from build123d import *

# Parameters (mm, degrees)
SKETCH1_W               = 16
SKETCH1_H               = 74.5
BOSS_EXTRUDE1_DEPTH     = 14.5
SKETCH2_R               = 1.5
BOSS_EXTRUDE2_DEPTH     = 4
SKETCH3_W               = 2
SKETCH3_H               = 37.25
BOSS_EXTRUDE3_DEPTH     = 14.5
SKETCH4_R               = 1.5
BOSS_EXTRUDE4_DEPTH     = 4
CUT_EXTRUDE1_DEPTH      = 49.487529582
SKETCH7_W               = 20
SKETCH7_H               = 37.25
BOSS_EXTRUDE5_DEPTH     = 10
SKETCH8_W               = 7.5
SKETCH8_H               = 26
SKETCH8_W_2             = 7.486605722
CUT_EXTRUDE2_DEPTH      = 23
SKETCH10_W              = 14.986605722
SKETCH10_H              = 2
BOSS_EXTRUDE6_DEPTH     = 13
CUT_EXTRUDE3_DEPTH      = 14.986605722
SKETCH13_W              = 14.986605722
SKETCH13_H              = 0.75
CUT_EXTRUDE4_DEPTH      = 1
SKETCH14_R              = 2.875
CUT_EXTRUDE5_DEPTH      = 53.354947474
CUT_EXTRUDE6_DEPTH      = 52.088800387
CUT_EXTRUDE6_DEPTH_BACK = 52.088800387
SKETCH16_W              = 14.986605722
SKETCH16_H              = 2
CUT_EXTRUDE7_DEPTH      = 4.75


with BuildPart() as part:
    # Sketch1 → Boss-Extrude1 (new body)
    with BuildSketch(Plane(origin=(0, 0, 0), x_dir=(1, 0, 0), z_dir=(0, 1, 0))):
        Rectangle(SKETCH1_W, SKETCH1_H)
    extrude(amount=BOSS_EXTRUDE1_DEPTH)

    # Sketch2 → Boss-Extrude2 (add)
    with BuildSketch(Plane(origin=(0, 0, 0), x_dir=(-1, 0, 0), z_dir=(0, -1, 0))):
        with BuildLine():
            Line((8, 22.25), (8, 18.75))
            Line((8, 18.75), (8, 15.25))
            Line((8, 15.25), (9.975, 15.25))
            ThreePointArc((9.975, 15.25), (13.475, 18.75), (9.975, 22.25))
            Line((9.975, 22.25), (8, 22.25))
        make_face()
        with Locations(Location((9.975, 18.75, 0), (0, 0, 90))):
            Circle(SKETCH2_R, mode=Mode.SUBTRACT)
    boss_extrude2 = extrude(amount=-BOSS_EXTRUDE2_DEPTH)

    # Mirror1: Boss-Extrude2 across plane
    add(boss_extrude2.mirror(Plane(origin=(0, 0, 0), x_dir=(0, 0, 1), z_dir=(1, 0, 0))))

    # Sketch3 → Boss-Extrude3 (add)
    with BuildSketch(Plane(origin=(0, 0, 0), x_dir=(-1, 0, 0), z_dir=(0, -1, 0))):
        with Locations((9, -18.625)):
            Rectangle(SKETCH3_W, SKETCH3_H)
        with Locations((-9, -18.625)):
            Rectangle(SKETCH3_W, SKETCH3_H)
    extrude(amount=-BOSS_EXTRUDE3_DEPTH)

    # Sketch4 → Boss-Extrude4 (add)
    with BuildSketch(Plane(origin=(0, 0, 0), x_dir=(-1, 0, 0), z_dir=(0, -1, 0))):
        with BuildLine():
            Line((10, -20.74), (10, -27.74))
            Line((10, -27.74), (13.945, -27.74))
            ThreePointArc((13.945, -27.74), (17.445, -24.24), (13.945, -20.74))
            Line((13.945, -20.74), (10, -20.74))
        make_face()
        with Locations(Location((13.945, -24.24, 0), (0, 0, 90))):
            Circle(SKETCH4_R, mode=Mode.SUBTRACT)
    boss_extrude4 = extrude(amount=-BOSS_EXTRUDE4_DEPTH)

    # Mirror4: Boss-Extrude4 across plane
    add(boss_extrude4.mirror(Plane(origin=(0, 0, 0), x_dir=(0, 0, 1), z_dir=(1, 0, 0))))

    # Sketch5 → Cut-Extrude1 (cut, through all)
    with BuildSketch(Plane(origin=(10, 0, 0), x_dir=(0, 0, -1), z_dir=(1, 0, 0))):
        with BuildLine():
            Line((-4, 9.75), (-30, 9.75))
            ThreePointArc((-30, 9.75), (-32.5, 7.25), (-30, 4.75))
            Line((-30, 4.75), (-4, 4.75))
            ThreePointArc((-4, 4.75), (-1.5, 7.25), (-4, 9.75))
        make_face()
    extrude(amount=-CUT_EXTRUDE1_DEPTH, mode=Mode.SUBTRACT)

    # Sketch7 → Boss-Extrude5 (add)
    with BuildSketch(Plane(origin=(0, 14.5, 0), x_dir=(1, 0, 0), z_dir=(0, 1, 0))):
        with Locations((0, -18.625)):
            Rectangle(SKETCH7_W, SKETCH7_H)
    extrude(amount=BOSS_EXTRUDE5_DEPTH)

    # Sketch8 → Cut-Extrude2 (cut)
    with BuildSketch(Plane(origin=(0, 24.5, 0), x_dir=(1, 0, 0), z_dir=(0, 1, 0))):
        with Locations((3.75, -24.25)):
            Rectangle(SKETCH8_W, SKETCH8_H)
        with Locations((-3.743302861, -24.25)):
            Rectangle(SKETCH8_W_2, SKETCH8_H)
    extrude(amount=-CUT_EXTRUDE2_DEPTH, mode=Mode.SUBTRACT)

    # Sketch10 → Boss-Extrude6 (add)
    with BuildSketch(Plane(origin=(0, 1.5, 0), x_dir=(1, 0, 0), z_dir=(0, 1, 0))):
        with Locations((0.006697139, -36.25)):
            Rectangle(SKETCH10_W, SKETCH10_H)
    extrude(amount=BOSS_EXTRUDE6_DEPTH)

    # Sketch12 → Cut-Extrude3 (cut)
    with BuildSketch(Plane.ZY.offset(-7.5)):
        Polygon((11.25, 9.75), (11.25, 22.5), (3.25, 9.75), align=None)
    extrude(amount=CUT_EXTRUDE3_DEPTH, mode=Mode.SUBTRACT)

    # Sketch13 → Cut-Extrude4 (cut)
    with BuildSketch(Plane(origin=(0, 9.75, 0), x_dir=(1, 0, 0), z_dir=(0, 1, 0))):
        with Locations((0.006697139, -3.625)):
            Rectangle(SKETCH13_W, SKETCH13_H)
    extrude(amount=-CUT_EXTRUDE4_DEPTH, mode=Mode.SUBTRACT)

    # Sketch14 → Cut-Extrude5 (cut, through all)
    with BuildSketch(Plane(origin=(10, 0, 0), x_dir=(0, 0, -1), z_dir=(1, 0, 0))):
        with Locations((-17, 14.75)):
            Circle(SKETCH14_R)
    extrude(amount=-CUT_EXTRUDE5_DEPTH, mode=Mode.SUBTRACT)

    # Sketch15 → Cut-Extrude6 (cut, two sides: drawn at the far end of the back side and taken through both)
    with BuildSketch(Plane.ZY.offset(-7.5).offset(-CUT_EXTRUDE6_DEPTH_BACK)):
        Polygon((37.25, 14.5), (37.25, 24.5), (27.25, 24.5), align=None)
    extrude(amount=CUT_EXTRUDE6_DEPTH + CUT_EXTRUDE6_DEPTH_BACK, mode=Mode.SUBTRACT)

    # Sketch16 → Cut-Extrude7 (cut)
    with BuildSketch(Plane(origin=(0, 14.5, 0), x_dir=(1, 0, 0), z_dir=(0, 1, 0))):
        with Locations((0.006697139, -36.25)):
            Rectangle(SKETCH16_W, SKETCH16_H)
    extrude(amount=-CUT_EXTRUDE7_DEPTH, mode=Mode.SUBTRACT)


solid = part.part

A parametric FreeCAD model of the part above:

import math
import FreeCAD as App
import Part
import Sketcher
from FreeCAD import Vector


def add_polygon(sketch, points):
    """Adds a closed chain of lines whose ends are joined by coincident constraints."""
    first, n = sketch.GeometryCount, len(points)
    for a, b in zip(points, points[1:] + points[:1]):
        sketch.addGeometry(Part.LineSegment(App.Vector(*a, 0), App.Vector(*b, 0)), False)
    for i in range(n):
        sketch.addConstraint(Sketcher.Constraint("Coincident", first + i, 2, first + (i + 1) % n, 1))

doc = App.newDocument("Part")
params = doc.addObject("Spreadsheet::Sheet", "Params")
for row, (alias, value) in enumerate([
    ("sketch1_width", "16 mm"),
    ("sketch1_height", "74.5 mm"),
    ("pad1_length", "14.5 mm"),
    ("sketch2_diameter", "3 mm"),
    ("sketch2_radius", "3.5 mm"),
    ("pad2_length", "4 mm"),
    ("sketch3_width", "2 mm"),
    ("sketch3_height", "37.25 mm"),
    ("pad3_length", "14.5 mm"),
    ("sketch4_diameter", "3 mm"),
    ("sketch4_radius", "3.5 mm"),
    ("pad4_length", "4 mm"),
    ("sketch5_radius", "2.5 mm"),
    ("sketch5_height", "26 mm"),
    ("sketch6_width", "20 mm"),
    ("sketch6_height", "37.25 mm"),
    ("pad5_length", "10 mm"),
    ("sketch7_height", "26 mm"),
    ("pocket2_length", "23 mm"),
    ("sketch8_height", "2 mm"),
    ("pad6_length", "13 mm"),
    ("sketch9_height", "8 mm"),
    ("sketch9_width", "12.75 mm"),
    ("pocket3_length", "14.986606 mm"),
    ("sketch10_height", "0.75 mm"),
    ("pocket4_length", "1 mm"),
    ("sketch11_diameter", "5.75 mm"),
    ("sketch12_width", "10 mm"),
    ("sketch13_height", "2 mm"),
    ("pocket7_length", "4.75 mm"),
], start=1):
    params.set(f"A{row}", alias)
    params.set(f"B{row}", "=" + value)
    params.setAlias(f"B{row}", alias)

body = doc.addObject("PartDesign::Body", "Body")

sketch1 = body.newObject("Sketcher::SketchObject", "Sketch")
sketch1.AttachmentSupport = (doc.getObject("XZ_Plane"), [""])
sketch1.MapMode = "FlatFace"
add_polygon(sketch1, [(-8, -37.25), (-8, 37.25), (8, 37.25), (8, -37.25)])
sketch1.addConstraint(Sketcher.Constraint("Vertical", 0))
sketch1.addConstraint(Sketcher.Constraint("Horizontal", 1))
sketch1.addConstraint(Sketcher.Constraint("Vertical", 2))
sketch1.addConstraint(Sketcher.Constraint("Horizontal", 3))
sketch1.addConstraint(Sketcher.Constraint("Symmetric", 0, 2, 2, 2, -1, 1))
sketch1.addConstraint(Sketcher.Constraint("DistanceX", 1, 1, 1, 2, 16.0))
sketch1.addConstraint(Sketcher.Constraint("DistanceY", 0, 1, 0, 2, 74.5))
sketch1.setExpression("Constraints[9]", "Params.sketch1_width")
sketch1.setExpression("Constraints[10]", "Params.sketch1_height")
pad1 = body.newObject("PartDesign::Pad", "Pad")
pad1.Profile = sketch1
pad1.setExpression("Length", "Params.pad1_length")
pad1.Reversed = True

sketch2 = body.newObject("Sketcher::SketchObject", "Sketch001")
sketch2.AttachmentSupport = (doc.getObject("XZ_Plane"), [""])
sketch2.MapMode = "FlatFace"
sketch2.addGeometry(Part.LineSegment(Vector(-8, -22.25, 0), Vector(-8, -15.25, 0)), False)
sketch2.addGeometry(Part.LineSegment(Vector(-8, -15.25, 0), Vector(-9.975, -15.25, 0)), False)
sketch2.addGeometry(Part.ArcOfCircle(Part.Circle(Vector(-9.975, -18.75, 0), Vector(0, 0, 1), 3.5), math.radians(90), math.radians(270)), False)
sketch2.addGeometry(Part.LineSegment(Vector(-9.975, -22.25, 0), Vector(-8, -22.25, 0)), False)
sketch2.addGeometry(Part.Circle(Vector(-9.975, -18.75, 0), Vector(0, 0, 1), 1.5), False)
sketch2.addConstraint(Sketcher.Constraint("Coincident", 0, 2, 1, 1))
sketch2.addConstraint(Sketcher.Constraint("Tangent", 1, 2, 2, 1))
sketch2.addConstraint(Sketcher.Constraint("Tangent", 2, 2, 3, 1))
sketch2.addConstraint(Sketcher.Constraint("Coincident", 3, 2, 0, 1))
sketch2.addConstraint(Sketcher.Constraint("Vertical", 0))
sketch2.addConstraint(Sketcher.Constraint("Horizontal", 1))
sketch2.addConstraint(Sketcher.Constraint("Horizontal", 3))
sketch2.addConstraint(Sketcher.Constraint("Coincident", 4, 3, 2, 3))
sketch2.addConstraint(Sketcher.Constraint("Diameter", 4, 3.0))
sketch2.addConstraint(Sketcher.Constraint("Radius", 2, 3.5))
sketch2.addConstraint(Sketcher.Constraint("DistanceX", 0, 2, -1, 1, 8.0))
sketch2.addConstraint(Sketcher.Constraint("DistanceX", 1, 2, 1, 1, 1.975))
sketch2.addConstraint(Sketcher.Constraint("DistanceY", 2, 3, -1, 1, 18.75))
sketch2.setExpression("Constraints[8]", "Params.sketch2_diameter")
sketch2.setExpression("Constraints[9]", "Params.sketch2_radius")
pad2 = body.newObject("PartDesign::Pad", "Pad001")
pad2.Profile = sketch2
pad2.setExpression("Length", "Params.pad2_length")
pad2.Reversed = True
doc.recompute()

mirrored = body.newObject("PartDesign::Mirrored", "Mirrored")
mirrored.Originals = [pad2]
mirrored.MirrorPlane = (doc.getObject("YZ_Plane"), [""])
body.Tip = mirrored

sketch3 = body.newObject("Sketcher::SketchObject", "Sketch002")
sketch3.AttachmentSupport = (doc.getObject("XZ_Plane"), [""])
sketch3.MapMode = "FlatFace"
add_polygon(sketch3, [(-8, 0), (-8, 37.25), (-10, 37.25), (-10, 0)])
add_polygon(sketch3, [(10, 0), (10, 37.25), (8, 37.25), (8, 0)])
sketch3.addConstraint(Sketcher.Constraint("Vertical", 0))
sketch3.addConstraint(Sketcher.Constraint("Horizontal", 1))
sketch3.addConstraint(Sketcher.Constraint("Vertical", 2))
sketch3.addConstraint(Sketcher.Constraint("Horizontal", 3))
sketch3.addConstraint(Sketcher.Constraint("Vertical", 4))
sketch3.addConstraint(Sketcher.Constraint("Horizontal", 5))
sketch3.addConstraint(Sketcher.Constraint("Vertical", 6))
sketch3.addConstraint(Sketcher.Constraint("Horizontal", 7))
sketch3.addConstraint(Sketcher.Constraint("Symmetric", 3, 2, 6, 2, -1, 1))
sketch3.addConstraint(Sketcher.Constraint("Symmetric", 1, 2, 4, 2, -2))
sketch3.addConstraint(Sketcher.Constraint("PointOnObject", 2, 2, -1))
sketch3.addConstraint(Sketcher.Constraint("DistanceX", 1, 2, 1, 1, 2.0))
sketch3.addConstraint(Sketcher.Constraint("DistanceX", 0, 2, -1, 1, 8.0))
sketch3.addConstraint(Sketcher.Constraint("DistanceY", 0, 1, 0, 2, 37.25))
sketch3.setExpression("Constraints[19]", "Params.sketch3_width")
sketch3.setExpression("Constraints[21]", "Params.sketch3_height")
pad3 = body.newObject("PartDesign::Pad", "Pad002")
pad3.Profile = sketch3
pad3.setExpression("Length", "Params.pad3_length")
pad3.Reversed = True

sketch4 = body.newObject("Sketcher::SketchObject", "Sketch003")
sketch4.AttachmentSupport = (doc.getObject("XZ_Plane"), [""])
sketch4.MapMode = "FlatFace"
sketch4.addGeometry(Part.LineSegment(Vector(-10, 20.74, 0), Vector(-10, 27.74, 0)), False)
sketch4.addGeometry(Part.LineSegment(Vector(-10, 27.74, 0), Vector(-13.945, 27.74, 0)), False)
sketch4.addGeometry(Part.ArcOfCircle(Part.Circle(Vector(-13.945, 24.24, 0), Vector(0, 0, 1), 3.5), math.radians(90), math.radians(270)), False)
sketch4.addGeometry(Part.LineSegment(Vector(-13.945, 20.74, 0), Vector(-10, 20.74, 0)), False)
sketch4.addGeometry(Part.Circle(Vector(-13.945, 24.24, 0), Vector(0, 0, 1), 1.5), False)
sketch4.addConstraint(Sketcher.Constraint("Coincident", 0, 2, 1, 1))
sketch4.addConstraint(Sketcher.Constraint("Tangent", 1, 2, 2, 1))
sketch4.addConstraint(Sketcher.Constraint("Tangent", 2, 2, 3, 1))
sketch4.addConstraint(Sketcher.Constraint("Coincident", 3, 2, 0, 1))
sketch4.addConstraint(Sketcher.Constraint("Vertical", 0))
sketch4.addConstraint(Sketcher.Constraint("Horizontal", 1))
sketch4.addConstraint(Sketcher.Constraint("Horizontal", 3))
sketch4.addConstraint(Sketcher.Constraint("Coincident", 4, 3, 2, 3))
sketch4.addConstraint(Sketcher.Constraint("Diameter", 4, 3.0))
sketch4.addConstraint(Sketcher.Constraint("Radius", 2, 3.5))
sketch4.addConstraint(Sketcher.Constraint("DistanceX", 0, 2, -1, 1, 10.0))
sketch4.addConstraint(Sketcher.Constraint("DistanceX", 1, 2, 1, 1, 3.945))
sketch4.addConstraint(Sketcher.Constraint("DistanceY", -1, 1, 2, 3, 24.24))
sketch4.setExpression("Constraints[8]", "Params.sketch4_diameter")
sketch4.setExpression("Constraints[9]", "Params.sketch4_radius")
pad4 = body.newObject("PartDesign::Pad", "Pad003")
pad4.Profile = sketch4
pad4.setExpression("Length", "Params.pad4_length")
pad4.Reversed = True
doc.recompute()

mirrored2 = body.newObject("PartDesign::Mirrored", "Mirrored001")
mirrored2.Originals = [pad4]
mirrored2.MirrorPlane = (doc.getObject("YZ_Plane"), [""])
body.Tip = mirrored2

sketch5 = body.newObject("Sketcher::SketchObject", "Sketch004")
sketch5.AttachmentSupport = (doc.getObject("YZ_Plane"), [""])
sketch5.MapMode = "FlatFace"
sketch5.AttachmentOffset = App.Placement(Vector(0, 0, 10), App.Rotation())
sketch5.addGeometry(Part.LineSegment(Vector(9.75, 4, 0), Vector(9.75, 30, 0)), False)
sketch5.addGeometry(Part.ArcOfCircle(Part.Circle(Vector(7.25, 30, 0), Vector(0, 0, 1), 2.5), math.radians(0), math.radians(180)), False)
sketch5.addGeometry(Part.LineSegment(Vector(4.75, 30, 0), Vector(4.75, 4, 0)), False)
sketch5.addGeometry(Part.ArcOfCircle(Part.Circle(Vector(7.25, 4, 0), Vector(0, 0, 1), 2.5), math.radians(180), math.radians(360)), False)
sketch5.addConstraint(Sketcher.Constraint("Tangent", 0, 2, 1, 1))
sketch5.addConstraint(Sketcher.Constraint("Tangent", 1, 2, 2, 1))
sketch5.addConstraint(Sketcher.Constraint("Tangent", 2, 2, 3, 1))
sketch5.addConstraint(Sketcher.Constraint("Tangent", 3, 2, 0, 1))
sketch5.addConstraint(Sketcher.Constraint("Vertical", 0))
sketch5.addConstraint(Sketcher.Constraint("Vertical", 2))
sketch5.addConstraint(Sketcher.Constraint("Radius", 1, 2.5))
sketch5.addConstraint(Sketcher.Constraint("DistanceY", 0, 1, 0, 2, 26.0))
sketch5.addConstraint(Sketcher.Constraint("DistanceY", -1, 1, 1, 3, 30.0))
sketch5.addConstraint(Sketcher.Constraint("DistanceX", -1, 1, 1, 3, 7.25))
sketch5.setExpression("Constraints[6]", "Params.sketch5_radius")
sketch5.setExpression("Constraints[7]", "Params.sketch5_height")
pocket1 = body.newObject("PartDesign::Pocket", "Pocket")
pocket1.Profile = sketch5
pocket1.Type = "ThroughAll"

sketch6 = body.newObject("Sketcher::SketchObject", "Sketch005")
sketch6.AttachmentSupport = (doc.getObject("XZ_Plane"), [""])
sketch6.MapMode = "FlatFace"
sketch6.AttachmentOffset = App.Placement(Vector(0, 0, -14.5), App.Rotation())
add_polygon(sketch6, [(-10, 0), (-10, 37.25), (10, 37.25), (10, 0)])
sketch6.addConstraint(Sketcher.Constraint("Vertical", 0))
sketch6.addConstraint(Sketcher.Constraint("Horizontal", 1))
sketch6.addConstraint(Sketcher.Constraint("Vertical", 2))
sketch6.addConstraint(Sketcher.Constraint("Horizontal", 3))
sketch6.addConstraint(Sketcher.Constraint("Symmetric", 2, 2, 3, 2, -1, 1))
sketch6.addConstraint(Sketcher.Constraint("DistanceX", 1, 1, 1, 2, 20.0))
sketch6.addConstraint(Sketcher.Constraint("DistanceY", 0, 1, 0, 2, 37.25))
sketch6.setExpression("Constraints[9]", "Params.sketch6_width")
sketch6.setExpression("Constraints[10]", "Params.sketch6_height")
pad5 = body.newObject("PartDesign::Pad", "Pad004")
pad5.Profile = sketch6
pad5.setExpression("Length", "Params.pad5_length")
pad5.Reversed = True

sketch7 = body.newObject("Sketcher::SketchObject", "Sketch006")
sketch7.AttachmentSupport = (doc.getObject("XZ_Plane"), [""])
sketch7.MapMode = "FlatFace"
sketch7.AttachmentOffset = App.Placement(Vector(0, 0, -24.5), App.Rotation())
add_polygon(sketch7, [(7.5, 37.25), (7.5, 11.25), (-7.486606, 11.25), (-7.486606, 37.25)])
sketch7.addConstraint(Sketcher.Constraint("Vertical", 0))
sketch7.addConstraint(Sketcher.Constraint("Horizontal", 1))
sketch7.addConstraint(Sketcher.Constraint("Vertical", 2))
sketch7.addConstraint(Sketcher.Constraint("Horizontal", 3))
sketch7.addConstraint(Sketcher.Constraint("DistanceY", 0, 2, 0, 1, 26.0))
sketch7.addConstraint(Sketcher.Constraint("DistanceX", -1, 1, 0, 2, 7.5))
sketch7.addConstraint(Sketcher.Constraint("DistanceY", -1, 1, 0, 2, 11.25))
sketch7.addConstraint(Sketcher.Constraint("DistanceX", 1, 2, 1, 1, 14.986606))
sketch7.setExpression("Constraints[8]", "Params.sketch7_height")
pocket2 = body.newObject("PartDesign::Pocket", "Pocket001")
pocket2.Profile = sketch7
pocket2.setExpression("Length", "Params.pocket2_length")
pocket2.Reversed = True

sketch8 = body.newObject("Sketcher::SketchObject", "Sketch007")
sketch8.AttachmentSupport = (doc.getObject("XZ_Plane"), [""])
sketch8.MapMode = "FlatFace"
sketch8.AttachmentOffset = App.Placement(Vector(0, 0, -1.5), App.Rotation())
add_polygon(sketch8, [(-7.486606, 35.25), (-7.486606, 37.25), (7.5, 37.25), (7.5, 35.25)])
sketch8.addConstraint(Sketcher.Constraint("Vertical", 0))
sketch8.addConstraint(Sketcher.Constraint("Horizontal", 1))
sketch8.addConstraint(Sketcher.Constraint("Vertical", 2))
sketch8.addConstraint(Sketcher.Constraint("Horizontal", 3))
sketch8.addConstraint(Sketcher.Constraint("DistanceY", 0, 1, 0, 2, 2.0))
sketch8.addConstraint(Sketcher.Constraint("DistanceX", -1, 1, 1, 2, 7.5))
sketch8.addConstraint(Sketcher.Constraint("DistanceY", -1, 1, 0, 2, 37.25))
sketch8.addConstraint(Sketcher.Constraint("DistanceX", 1, 1, 1, 2, 14.986606))
sketch8.setExpression("Constraints[8]", "Params.sketch8_height")
pad6 = body.newObject("PartDesign::Pad", "Pad005")
pad6.Profile = sketch8
pad6.setExpression("Length", "Params.pad6_length")
pad6.Reversed = True

sketch9 = body.newObject("Sketcher::SketchObject", "Sketch008")
sketch9.AttachmentSupport = (doc.getObject("YZ_Plane"), [""])
sketch9.MapMode = "FlatFace"
sketch9.AttachmentOffset = App.Placement(Vector(0, 0, 7.5), App.Rotation())
add_polygon(sketch9, [(9.75, 11.25), (22.5, 11.25), (9.75, 3.25)])
sketch9.addConstraint(Sketcher.Constraint("Horizontal", 0))
sketch9.addConstraint(Sketcher.Constraint("Vertical", 2))
sketch9.addConstraint(Sketcher.Constraint("DistanceY", 2, 1, 2, 2, 8.0))
sketch9.addConstraint(Sketcher.Constraint("DistanceX", 0, 1, 0, 2, 12.75))
sketch9.addConstraint(Sketcher.Constraint("DistanceX", -1, 1, 0, 2, 22.5))
sketch9.addConstraint(Sketcher.Constraint("DistanceY", -1, 1, 0, 2, 11.25))
sketch9.setExpression("Constraints[5]", "Params.sketch9_height")
sketch9.setExpression("Constraints[6]", "Params.sketch9_width")
pocket3 = body.newObject("PartDesign::Pocket", "Pocket002")
pocket3.Profile = sketch9
pocket3.setExpression("Length", "Params.pocket3_length")

sketch10 = body.newObject("Sketcher::SketchObject", "Sketch009")
sketch10.AttachmentSupport = (doc.getObject("XZ_Plane"), [""])
sketch10.MapMode = "FlatFace"
sketch10.AttachmentOffset = App.Placement(Vector(0, 0, -9.75), App.Rotation())
add_polygon(sketch10, [(-7.486606, 3.25), (-7.486606, 4), (7.5, 4), (7.5, 3.25)])
sketch10.addConstraint(Sketcher.Constraint("Vertical", 0))
sketch10.addConstraint(Sketcher.Constraint("Horizontal", 1))
sketch10.addConstraint(Sketcher.Constraint("Vertical", 2))
sketch10.addConstraint(Sketcher.Constraint("Horizontal", 3))
sketch10.addConstraint(Sketcher.Constraint("DistanceY", -1, 1, 0, 2, 4.0))
sketch10.addConstraint(Sketcher.Constraint("DistanceY", 0, 1, 0, 2, 0.75))
sketch10.addConstraint(Sketcher.Constraint("DistanceX", -1, 1, 1, 2, 7.5))
sketch10.addConstraint(Sketcher.Constraint("DistanceX", 1, 1, 1, 2, 14.986606))
sketch10.setExpression("Constraints[9]", "Params.sketch10_height")
pocket4 = body.newObject("PartDesign::Pocket", "Pocket003")
pocket4.Profile = sketch10
pocket4.setExpression("Length", "Params.pocket4_length")
pocket4.Reversed = True

sketch11 = body.newObject("Sketcher::SketchObject", "Sketch010")
sketch11.AttachmentSupport = (doc.getObject("YZ_Plane"), [""])
sketch11.MapMode = "FlatFace"
sketch11.AttachmentOffset = App.Placement(Vector(0, 0, 10), App.Rotation())
sketch11.addGeometry(Part.Circle(Vector(14.75, 17, 0), Vector(0, 0, 1), 2.875), False)
sketch11.addConstraint(Sketcher.Constraint("Diameter", 0, 5.75))
sketch11.addConstraint(Sketcher.Constraint("DistanceY", -1, 1, 0, 3, 17.0))
sketch11.addConstraint(Sketcher.Constraint("DistanceX", -1, 1, 0, 3, 14.75))
sketch11.setExpression("Constraints[0]", "Params.sketch11_diameter")
pocket5 = body.newObject("PartDesign::Pocket", "Pocket004")
pocket5.Profile = sketch11
pocket5.Type = "ThroughAll"

sketch12 = body.newObject("Sketcher::SketchObject", "Sketch011")
sketch12.AttachmentSupport = (doc.getObject("YZ_Plane"), [""])
sketch12.MapMode = "FlatFace"
sketch12.AttachmentOffset = App.Placement(Vector(0, 0, 7.5), App.Rotation())
add_polygon(sketch12, [(14.5, 37.25), (24.5, 37.25), (24.5, 27.25)])
sketch12.addConstraint(Sketcher.Constraint("Horizontal", 0))
sketch12.addConstraint(Sketcher.Constraint("Vertical", 1))
sketch12.addConstraint(Sketcher.Constraint("Equal", 0, 1))
sketch12.addConstraint(Sketcher.Constraint("DistanceX", 0, 1, 0, 2, 10.0))
sketch12.addConstraint(Sketcher.Constraint("DistanceX", -1, 1, 0, 2, 24.5))
sketch12.addConstraint(Sketcher.Constraint("DistanceY", -1, 1, 0, 2, 37.25))
sketch12.setExpression("Constraints[6]", "Params.sketch12_width")
pocket6 = body.newObject("PartDesign::Pocket", "Pocket005")
pocket6.Profile = sketch12
pocket6.Type = "ThroughAll"
pocket6.Midplane = True

sketch13 = body.newObject("Sketcher::SketchObject", "Sketch012")
sketch13.AttachmentSupport = (doc.getObject("XZ_Plane"), [""])
sketch13.MapMode = "FlatFace"
sketch13.AttachmentOffset = App.Placement(Vector(0, 0, -14.5), App.Rotation())
add_polygon(sketch13, [(-7.486606, 35.25), (-7.486606, 37.25), (7.5, 37.25), (7.5, 35.25)])
sketch13.addConstraint(Sketcher.Constraint("Vertical", 0))
sketch13.addConstraint(Sketcher.Constraint("Horizontal", 1))
sketch13.addConstraint(Sketcher.Constraint("Vertical", 2))
sketch13.addConstraint(Sketcher.Constraint("Horizontal", 3))
sketch13.addConstraint(Sketcher.Constraint("DistanceY", 0, 1, 0, 2, 2.0))
sketch13.addConstraint(Sketcher.Constraint("DistanceX", -1, 1, 1, 2, 7.5))
sketch13.addConstraint(Sketcher.Constraint("DistanceY", -1, 1, 0, 2, 37.25))
sketch13.addConstraint(Sketcher.Constraint("DistanceX", 1, 1, 1, 2, 14.986606))
sketch13.setExpression("Constraints[8]", "Params.sketch13_height")
pocket7 = body.newObject("PartDesign::Pocket", "Pocket006")
pocket7.Profile = sketch13
pocket7.setExpression("Length", "Params.pocket7_length")
pocket7.Reversed = True

doc.recompute()
